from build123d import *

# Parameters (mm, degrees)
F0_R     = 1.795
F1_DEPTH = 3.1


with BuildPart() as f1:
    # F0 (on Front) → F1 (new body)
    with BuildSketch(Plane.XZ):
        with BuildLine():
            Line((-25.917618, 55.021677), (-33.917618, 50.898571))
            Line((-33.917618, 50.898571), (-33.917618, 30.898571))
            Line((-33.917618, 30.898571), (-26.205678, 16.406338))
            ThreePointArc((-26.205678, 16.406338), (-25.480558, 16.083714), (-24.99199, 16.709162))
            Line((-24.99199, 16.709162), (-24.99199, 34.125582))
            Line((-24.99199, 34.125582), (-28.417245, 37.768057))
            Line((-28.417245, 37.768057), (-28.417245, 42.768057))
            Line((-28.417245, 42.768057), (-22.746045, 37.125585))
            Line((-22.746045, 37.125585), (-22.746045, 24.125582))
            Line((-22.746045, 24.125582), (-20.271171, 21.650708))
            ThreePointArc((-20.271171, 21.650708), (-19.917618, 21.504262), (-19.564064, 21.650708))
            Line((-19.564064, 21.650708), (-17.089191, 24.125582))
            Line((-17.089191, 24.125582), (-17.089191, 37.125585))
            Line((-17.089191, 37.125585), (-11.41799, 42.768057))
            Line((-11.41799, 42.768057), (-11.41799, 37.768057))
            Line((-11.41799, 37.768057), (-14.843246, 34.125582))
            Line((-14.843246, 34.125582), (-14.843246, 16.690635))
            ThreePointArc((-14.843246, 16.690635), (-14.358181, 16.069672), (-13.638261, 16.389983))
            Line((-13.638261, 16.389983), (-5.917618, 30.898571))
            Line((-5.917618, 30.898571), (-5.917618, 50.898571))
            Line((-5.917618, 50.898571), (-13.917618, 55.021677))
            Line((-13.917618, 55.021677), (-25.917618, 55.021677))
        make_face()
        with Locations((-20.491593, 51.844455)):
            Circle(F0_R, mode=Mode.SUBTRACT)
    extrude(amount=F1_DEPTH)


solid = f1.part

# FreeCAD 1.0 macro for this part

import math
import FreeCAD as App
import Part
import Sketcher

V = App.Vector

doc = App.newDocument("Part")
body = doc.addObject("PartDesign::Body", "Body")

sketch1 = doc.addObject("Sketcher::SketchObject", "Sketch")
body.addObject(sketch1)
sketch1.AttachmentSupport = (doc.XZ_Plane, [""])
sketch1.MapMode = "FlatFace"
sketch1.addGeometry([
    Part.LineSegment(V(-25.9, 55, 0), V(-33.9, 50.9, 0)),
    Part.LineSegment(V(-33.9, 50.9, 0), V(-33.9, 30.9, 0)),
    Part.LineSegment(V(-33.9, 30.9, 0), V(-26.2, 16.4, 0)),
    Part.ArcOfCircle(Part.Circle(V(-25.6, 16.7, 0), V(0, 0, 1), 0.6), math.radians(-152), math.radians(0)),
    Part.LineSegment(V(-25, 16.7, 0), V(-25, 34.1, 0)),
    Part.LineSegment(V(-25, 34.1, 0), V(-28.4, 37.8, 0)),
    Part.LineSegment(V(-28.4, 37.8, 0), V(-28.4, 42.8, 0)),
    Part.LineSegment(V(-28.4, 42.8, 0), V(-22.7, 37.1, 0)),
    Part.LineSegment(V(-22.7, 37.1, 0), V(-22.7, 24.1, 0)),
    Part.LineSegment(V(-22.7, 24.1, 0), V(-20.3, 21.7, 0)),
    Part.ArcOfCircle(Part.Circle(V(-19.9, 22, 0), V(0, 0, 1), 0.5), math.radians(-135), math.radians(-45)),
    Part.LineSegment(V(-19.6, 21.7, 0), V(-17.1, 24.1, 0)),
    Part.LineSegment(V(-17.1, 24.1, 0), V(-17.1, 37.1, 0)),
    Part.LineSegment(V(-17.1, 37.1, 0), V(-11.4, 42.8, 0)),
    Part.LineSegment(V(-11.4, 42.8, 0), V(-11.4, 37.8, 0)),
    Part.LineSegment(V(-11.4, 37.8, 0), V(-14.8, 34.1, 0)),
    Part.LineSegment(V(-14.8, 34.1, 0), V(-14.8, 16.7, 0)),
    Part.ArcOfCircle(Part.Circle(V(-14.2, 16.7, 0), V(0, 0, 1), 0.6), math.radians(180), math.radians(332)),
    Part.LineSegment(V(-13.6, 16.4, 0), V(-5.9, 30.9, 0)),
    Part.LineSegment(V(-5.9, 30.9, 0), V(-5.9, 50.9, 0)),
    Part.LineSegment(V(-5.9, 50.9, 0), V(-13.9, 55, 0)),
    Part.LineSegment(V(-13.9, 55, 0), V(-25.9, 55, 0)),
    Part.Circle(V(-20.5, 51.8, 0), V(0, 0, 1), 1.8),
], False)
sketch1.addConstraint([
    Sketcher.Constraint("Coincident", 0, 2, 1, 1),
    Sketcher.Constraint("Coincident", 1, 2, 2, 1),
    Sketcher.Constraint("Tangent", 2, 2, 3, 1),
    Sketcher.Constraint("Tangent", 3, 2, 4, 1),
    Sketcher.Constraint("Coincident", 4, 2, 5, 1),
    Sketcher.Constraint("Coincident", 5, 2, 6, 1),
    Sketcher.Constraint("Coincident", 6, 2, 7, 1),
    Sketcher.Constraint("Coincident", 7, 2, 8, 1),
    Sketcher.Constraint("Coincident", 8, 2, 9, 1),
    Sketcher.Constraint("Coincident", 9, 2, 10, 1),
    Sketcher.Constraint("Coincident", 10, 2, 11, 1),
    Sketcher.Constraint("Coincident", 11, 2, 12, 1),
    Sketcher.Constraint("Coincident", 12, 2, 13, 1),
    Sketcher.Constraint("Coincident", 13, 2, 14, 1),
    Sketcher.Constraint("Coincident", 14, 2, 15, 1),
    Sketcher.Constraint("Coincident", 15, 2, 16, 1),
    Sketcher.Constraint("Tangent", 16, 2, 17, 1),
    Sketcher.Constraint("Tangent", 17, 2, 18, 1),
    Sketcher.Constraint("Coincident", 18, 2, 19, 1),
    Sketcher.Constraint("Coincident", 19, 2, 20, 1),
    Sketcher.Constraint("Coincident", 20, 2, 21, 1),
    Sketcher.Constraint("Coincident", 21, 2, 0, 1),
    Sketcher.Constraint("Vertical", 1),
    Sketcher.Constraint("Vertical", 4),
    Sketcher.Constraint("Vertical", 6),
    Sketcher.Constraint("Vertical", 8),
    Sketcher.Constraint("Vertical", 12),
    Sketcher.Constraint("Vertical", 14),
    Sketcher.Constraint("Vertical", 16),
    Sketcher.Constraint("Vertical", 19),
    Sketcher.Constraint("Horizontal", 21),
    Sketcher.Constraint("Perpendicular", 9, 11),
    Sketcher.Constraint("Horizontal", 9, 2, 10, 2),
    Sketcher.Constraint("Horizontal", 8, 2, 11, 2),
    Sketcher.Constraint("Horizontal", 7, 2, 12, 2),
    Sketcher.Constraint("Horizontal", 6, 2, 13, 2),
    Sketcher.Constraint("Horizontal", 5, 2, 14, 2),
    Sketcher.Constraint("Horizontal", 4, 2, 15, 2),
    Sketcher.Constraint("Horizontal", 1, 2, 18, 2),
    Sketcher.Constraint("Horizontal", 0, 2, 19, 2),
    Sketcher.Constraint("Equal", 9, 11),
    Sketcher.Constraint("Equal", 7, 13),
    Sketcher.Constraint("Equal", 5, 15),
    Sketcher.Constraint("Equal", 0, 20),
    Sketcher.Constraint("Radius", 10, 0.500002),
    Sketcher.Constraint("Diameter", 22, 3.59),
    Sketcher.Constraint("DistanceX", 21, 2, 21, 1, 12.0),
    Sketcher.Constraint("DistanceY", 1, 2, 1, 1, 20.0),
    Sketcher.Constraint("DistanceY", 6, 1, 6, 2, 5.0),
    Sketcher.Constraint("Radius", 17, 0.64),
    Sketcher.Constraint("Distance", 0, 9.0),
    Sketcher.Constraint("Distance", 5, 5.0),
    Sketcher.Constraint("Distance", 7, 8.0),
    Sketcher.Constraint("DistanceX", 0, 2, 10, 3, 14.0),
    Sketcher.Constraint("DistanceY", 8, 2, 4, 2, 10.0),
    Sketcher.Constraint("DistanceX", 20, 2, 19, 2, 8.0),
    Sketcher.Constraint("Distance", 9, 3.5),
    Sketcher.Constraint("Radius", 3, 0.644622),
    Sketcher.Constraint("DistanceX", 4, 2, 13, 2, 13.574),
    Sketcher.Constraint("DistanceY", 4, 1, 4, 2, 17.41642),
    Sketcher.Constraint("DistanceY", 3, 3, 10, 3, 5.295102),
    Sketcher.Constraint("DistanceY", 5, 2, 22, 3, 14.076398),
    Sketcher.Constraint("DistanceX", 5, 2, 7, 2, 5.6712),
    Sketcher.Constraint("Distance", 2, 16.41642),
    Sketcher.Constraint("DistanceY", 16, 2, 16, 1, 17.434947),
    Sketcher.Constraint("DistanceY", -1, 1, 3, 3, 16.709162),
    Sketcher.Constraint("DistanceX", 3, 2, -1, 1, 24.99199),
    Sketcher.Constraint("DistanceX", 3, 3, 22, 3, 5.145019),
])
pad1 = doc.addObject("PartDesign::Pad", "Pad")
body.addObject(pad1)
pad1.Profile = sketch1
pad1.Length = 3.1

doc.recompute()
